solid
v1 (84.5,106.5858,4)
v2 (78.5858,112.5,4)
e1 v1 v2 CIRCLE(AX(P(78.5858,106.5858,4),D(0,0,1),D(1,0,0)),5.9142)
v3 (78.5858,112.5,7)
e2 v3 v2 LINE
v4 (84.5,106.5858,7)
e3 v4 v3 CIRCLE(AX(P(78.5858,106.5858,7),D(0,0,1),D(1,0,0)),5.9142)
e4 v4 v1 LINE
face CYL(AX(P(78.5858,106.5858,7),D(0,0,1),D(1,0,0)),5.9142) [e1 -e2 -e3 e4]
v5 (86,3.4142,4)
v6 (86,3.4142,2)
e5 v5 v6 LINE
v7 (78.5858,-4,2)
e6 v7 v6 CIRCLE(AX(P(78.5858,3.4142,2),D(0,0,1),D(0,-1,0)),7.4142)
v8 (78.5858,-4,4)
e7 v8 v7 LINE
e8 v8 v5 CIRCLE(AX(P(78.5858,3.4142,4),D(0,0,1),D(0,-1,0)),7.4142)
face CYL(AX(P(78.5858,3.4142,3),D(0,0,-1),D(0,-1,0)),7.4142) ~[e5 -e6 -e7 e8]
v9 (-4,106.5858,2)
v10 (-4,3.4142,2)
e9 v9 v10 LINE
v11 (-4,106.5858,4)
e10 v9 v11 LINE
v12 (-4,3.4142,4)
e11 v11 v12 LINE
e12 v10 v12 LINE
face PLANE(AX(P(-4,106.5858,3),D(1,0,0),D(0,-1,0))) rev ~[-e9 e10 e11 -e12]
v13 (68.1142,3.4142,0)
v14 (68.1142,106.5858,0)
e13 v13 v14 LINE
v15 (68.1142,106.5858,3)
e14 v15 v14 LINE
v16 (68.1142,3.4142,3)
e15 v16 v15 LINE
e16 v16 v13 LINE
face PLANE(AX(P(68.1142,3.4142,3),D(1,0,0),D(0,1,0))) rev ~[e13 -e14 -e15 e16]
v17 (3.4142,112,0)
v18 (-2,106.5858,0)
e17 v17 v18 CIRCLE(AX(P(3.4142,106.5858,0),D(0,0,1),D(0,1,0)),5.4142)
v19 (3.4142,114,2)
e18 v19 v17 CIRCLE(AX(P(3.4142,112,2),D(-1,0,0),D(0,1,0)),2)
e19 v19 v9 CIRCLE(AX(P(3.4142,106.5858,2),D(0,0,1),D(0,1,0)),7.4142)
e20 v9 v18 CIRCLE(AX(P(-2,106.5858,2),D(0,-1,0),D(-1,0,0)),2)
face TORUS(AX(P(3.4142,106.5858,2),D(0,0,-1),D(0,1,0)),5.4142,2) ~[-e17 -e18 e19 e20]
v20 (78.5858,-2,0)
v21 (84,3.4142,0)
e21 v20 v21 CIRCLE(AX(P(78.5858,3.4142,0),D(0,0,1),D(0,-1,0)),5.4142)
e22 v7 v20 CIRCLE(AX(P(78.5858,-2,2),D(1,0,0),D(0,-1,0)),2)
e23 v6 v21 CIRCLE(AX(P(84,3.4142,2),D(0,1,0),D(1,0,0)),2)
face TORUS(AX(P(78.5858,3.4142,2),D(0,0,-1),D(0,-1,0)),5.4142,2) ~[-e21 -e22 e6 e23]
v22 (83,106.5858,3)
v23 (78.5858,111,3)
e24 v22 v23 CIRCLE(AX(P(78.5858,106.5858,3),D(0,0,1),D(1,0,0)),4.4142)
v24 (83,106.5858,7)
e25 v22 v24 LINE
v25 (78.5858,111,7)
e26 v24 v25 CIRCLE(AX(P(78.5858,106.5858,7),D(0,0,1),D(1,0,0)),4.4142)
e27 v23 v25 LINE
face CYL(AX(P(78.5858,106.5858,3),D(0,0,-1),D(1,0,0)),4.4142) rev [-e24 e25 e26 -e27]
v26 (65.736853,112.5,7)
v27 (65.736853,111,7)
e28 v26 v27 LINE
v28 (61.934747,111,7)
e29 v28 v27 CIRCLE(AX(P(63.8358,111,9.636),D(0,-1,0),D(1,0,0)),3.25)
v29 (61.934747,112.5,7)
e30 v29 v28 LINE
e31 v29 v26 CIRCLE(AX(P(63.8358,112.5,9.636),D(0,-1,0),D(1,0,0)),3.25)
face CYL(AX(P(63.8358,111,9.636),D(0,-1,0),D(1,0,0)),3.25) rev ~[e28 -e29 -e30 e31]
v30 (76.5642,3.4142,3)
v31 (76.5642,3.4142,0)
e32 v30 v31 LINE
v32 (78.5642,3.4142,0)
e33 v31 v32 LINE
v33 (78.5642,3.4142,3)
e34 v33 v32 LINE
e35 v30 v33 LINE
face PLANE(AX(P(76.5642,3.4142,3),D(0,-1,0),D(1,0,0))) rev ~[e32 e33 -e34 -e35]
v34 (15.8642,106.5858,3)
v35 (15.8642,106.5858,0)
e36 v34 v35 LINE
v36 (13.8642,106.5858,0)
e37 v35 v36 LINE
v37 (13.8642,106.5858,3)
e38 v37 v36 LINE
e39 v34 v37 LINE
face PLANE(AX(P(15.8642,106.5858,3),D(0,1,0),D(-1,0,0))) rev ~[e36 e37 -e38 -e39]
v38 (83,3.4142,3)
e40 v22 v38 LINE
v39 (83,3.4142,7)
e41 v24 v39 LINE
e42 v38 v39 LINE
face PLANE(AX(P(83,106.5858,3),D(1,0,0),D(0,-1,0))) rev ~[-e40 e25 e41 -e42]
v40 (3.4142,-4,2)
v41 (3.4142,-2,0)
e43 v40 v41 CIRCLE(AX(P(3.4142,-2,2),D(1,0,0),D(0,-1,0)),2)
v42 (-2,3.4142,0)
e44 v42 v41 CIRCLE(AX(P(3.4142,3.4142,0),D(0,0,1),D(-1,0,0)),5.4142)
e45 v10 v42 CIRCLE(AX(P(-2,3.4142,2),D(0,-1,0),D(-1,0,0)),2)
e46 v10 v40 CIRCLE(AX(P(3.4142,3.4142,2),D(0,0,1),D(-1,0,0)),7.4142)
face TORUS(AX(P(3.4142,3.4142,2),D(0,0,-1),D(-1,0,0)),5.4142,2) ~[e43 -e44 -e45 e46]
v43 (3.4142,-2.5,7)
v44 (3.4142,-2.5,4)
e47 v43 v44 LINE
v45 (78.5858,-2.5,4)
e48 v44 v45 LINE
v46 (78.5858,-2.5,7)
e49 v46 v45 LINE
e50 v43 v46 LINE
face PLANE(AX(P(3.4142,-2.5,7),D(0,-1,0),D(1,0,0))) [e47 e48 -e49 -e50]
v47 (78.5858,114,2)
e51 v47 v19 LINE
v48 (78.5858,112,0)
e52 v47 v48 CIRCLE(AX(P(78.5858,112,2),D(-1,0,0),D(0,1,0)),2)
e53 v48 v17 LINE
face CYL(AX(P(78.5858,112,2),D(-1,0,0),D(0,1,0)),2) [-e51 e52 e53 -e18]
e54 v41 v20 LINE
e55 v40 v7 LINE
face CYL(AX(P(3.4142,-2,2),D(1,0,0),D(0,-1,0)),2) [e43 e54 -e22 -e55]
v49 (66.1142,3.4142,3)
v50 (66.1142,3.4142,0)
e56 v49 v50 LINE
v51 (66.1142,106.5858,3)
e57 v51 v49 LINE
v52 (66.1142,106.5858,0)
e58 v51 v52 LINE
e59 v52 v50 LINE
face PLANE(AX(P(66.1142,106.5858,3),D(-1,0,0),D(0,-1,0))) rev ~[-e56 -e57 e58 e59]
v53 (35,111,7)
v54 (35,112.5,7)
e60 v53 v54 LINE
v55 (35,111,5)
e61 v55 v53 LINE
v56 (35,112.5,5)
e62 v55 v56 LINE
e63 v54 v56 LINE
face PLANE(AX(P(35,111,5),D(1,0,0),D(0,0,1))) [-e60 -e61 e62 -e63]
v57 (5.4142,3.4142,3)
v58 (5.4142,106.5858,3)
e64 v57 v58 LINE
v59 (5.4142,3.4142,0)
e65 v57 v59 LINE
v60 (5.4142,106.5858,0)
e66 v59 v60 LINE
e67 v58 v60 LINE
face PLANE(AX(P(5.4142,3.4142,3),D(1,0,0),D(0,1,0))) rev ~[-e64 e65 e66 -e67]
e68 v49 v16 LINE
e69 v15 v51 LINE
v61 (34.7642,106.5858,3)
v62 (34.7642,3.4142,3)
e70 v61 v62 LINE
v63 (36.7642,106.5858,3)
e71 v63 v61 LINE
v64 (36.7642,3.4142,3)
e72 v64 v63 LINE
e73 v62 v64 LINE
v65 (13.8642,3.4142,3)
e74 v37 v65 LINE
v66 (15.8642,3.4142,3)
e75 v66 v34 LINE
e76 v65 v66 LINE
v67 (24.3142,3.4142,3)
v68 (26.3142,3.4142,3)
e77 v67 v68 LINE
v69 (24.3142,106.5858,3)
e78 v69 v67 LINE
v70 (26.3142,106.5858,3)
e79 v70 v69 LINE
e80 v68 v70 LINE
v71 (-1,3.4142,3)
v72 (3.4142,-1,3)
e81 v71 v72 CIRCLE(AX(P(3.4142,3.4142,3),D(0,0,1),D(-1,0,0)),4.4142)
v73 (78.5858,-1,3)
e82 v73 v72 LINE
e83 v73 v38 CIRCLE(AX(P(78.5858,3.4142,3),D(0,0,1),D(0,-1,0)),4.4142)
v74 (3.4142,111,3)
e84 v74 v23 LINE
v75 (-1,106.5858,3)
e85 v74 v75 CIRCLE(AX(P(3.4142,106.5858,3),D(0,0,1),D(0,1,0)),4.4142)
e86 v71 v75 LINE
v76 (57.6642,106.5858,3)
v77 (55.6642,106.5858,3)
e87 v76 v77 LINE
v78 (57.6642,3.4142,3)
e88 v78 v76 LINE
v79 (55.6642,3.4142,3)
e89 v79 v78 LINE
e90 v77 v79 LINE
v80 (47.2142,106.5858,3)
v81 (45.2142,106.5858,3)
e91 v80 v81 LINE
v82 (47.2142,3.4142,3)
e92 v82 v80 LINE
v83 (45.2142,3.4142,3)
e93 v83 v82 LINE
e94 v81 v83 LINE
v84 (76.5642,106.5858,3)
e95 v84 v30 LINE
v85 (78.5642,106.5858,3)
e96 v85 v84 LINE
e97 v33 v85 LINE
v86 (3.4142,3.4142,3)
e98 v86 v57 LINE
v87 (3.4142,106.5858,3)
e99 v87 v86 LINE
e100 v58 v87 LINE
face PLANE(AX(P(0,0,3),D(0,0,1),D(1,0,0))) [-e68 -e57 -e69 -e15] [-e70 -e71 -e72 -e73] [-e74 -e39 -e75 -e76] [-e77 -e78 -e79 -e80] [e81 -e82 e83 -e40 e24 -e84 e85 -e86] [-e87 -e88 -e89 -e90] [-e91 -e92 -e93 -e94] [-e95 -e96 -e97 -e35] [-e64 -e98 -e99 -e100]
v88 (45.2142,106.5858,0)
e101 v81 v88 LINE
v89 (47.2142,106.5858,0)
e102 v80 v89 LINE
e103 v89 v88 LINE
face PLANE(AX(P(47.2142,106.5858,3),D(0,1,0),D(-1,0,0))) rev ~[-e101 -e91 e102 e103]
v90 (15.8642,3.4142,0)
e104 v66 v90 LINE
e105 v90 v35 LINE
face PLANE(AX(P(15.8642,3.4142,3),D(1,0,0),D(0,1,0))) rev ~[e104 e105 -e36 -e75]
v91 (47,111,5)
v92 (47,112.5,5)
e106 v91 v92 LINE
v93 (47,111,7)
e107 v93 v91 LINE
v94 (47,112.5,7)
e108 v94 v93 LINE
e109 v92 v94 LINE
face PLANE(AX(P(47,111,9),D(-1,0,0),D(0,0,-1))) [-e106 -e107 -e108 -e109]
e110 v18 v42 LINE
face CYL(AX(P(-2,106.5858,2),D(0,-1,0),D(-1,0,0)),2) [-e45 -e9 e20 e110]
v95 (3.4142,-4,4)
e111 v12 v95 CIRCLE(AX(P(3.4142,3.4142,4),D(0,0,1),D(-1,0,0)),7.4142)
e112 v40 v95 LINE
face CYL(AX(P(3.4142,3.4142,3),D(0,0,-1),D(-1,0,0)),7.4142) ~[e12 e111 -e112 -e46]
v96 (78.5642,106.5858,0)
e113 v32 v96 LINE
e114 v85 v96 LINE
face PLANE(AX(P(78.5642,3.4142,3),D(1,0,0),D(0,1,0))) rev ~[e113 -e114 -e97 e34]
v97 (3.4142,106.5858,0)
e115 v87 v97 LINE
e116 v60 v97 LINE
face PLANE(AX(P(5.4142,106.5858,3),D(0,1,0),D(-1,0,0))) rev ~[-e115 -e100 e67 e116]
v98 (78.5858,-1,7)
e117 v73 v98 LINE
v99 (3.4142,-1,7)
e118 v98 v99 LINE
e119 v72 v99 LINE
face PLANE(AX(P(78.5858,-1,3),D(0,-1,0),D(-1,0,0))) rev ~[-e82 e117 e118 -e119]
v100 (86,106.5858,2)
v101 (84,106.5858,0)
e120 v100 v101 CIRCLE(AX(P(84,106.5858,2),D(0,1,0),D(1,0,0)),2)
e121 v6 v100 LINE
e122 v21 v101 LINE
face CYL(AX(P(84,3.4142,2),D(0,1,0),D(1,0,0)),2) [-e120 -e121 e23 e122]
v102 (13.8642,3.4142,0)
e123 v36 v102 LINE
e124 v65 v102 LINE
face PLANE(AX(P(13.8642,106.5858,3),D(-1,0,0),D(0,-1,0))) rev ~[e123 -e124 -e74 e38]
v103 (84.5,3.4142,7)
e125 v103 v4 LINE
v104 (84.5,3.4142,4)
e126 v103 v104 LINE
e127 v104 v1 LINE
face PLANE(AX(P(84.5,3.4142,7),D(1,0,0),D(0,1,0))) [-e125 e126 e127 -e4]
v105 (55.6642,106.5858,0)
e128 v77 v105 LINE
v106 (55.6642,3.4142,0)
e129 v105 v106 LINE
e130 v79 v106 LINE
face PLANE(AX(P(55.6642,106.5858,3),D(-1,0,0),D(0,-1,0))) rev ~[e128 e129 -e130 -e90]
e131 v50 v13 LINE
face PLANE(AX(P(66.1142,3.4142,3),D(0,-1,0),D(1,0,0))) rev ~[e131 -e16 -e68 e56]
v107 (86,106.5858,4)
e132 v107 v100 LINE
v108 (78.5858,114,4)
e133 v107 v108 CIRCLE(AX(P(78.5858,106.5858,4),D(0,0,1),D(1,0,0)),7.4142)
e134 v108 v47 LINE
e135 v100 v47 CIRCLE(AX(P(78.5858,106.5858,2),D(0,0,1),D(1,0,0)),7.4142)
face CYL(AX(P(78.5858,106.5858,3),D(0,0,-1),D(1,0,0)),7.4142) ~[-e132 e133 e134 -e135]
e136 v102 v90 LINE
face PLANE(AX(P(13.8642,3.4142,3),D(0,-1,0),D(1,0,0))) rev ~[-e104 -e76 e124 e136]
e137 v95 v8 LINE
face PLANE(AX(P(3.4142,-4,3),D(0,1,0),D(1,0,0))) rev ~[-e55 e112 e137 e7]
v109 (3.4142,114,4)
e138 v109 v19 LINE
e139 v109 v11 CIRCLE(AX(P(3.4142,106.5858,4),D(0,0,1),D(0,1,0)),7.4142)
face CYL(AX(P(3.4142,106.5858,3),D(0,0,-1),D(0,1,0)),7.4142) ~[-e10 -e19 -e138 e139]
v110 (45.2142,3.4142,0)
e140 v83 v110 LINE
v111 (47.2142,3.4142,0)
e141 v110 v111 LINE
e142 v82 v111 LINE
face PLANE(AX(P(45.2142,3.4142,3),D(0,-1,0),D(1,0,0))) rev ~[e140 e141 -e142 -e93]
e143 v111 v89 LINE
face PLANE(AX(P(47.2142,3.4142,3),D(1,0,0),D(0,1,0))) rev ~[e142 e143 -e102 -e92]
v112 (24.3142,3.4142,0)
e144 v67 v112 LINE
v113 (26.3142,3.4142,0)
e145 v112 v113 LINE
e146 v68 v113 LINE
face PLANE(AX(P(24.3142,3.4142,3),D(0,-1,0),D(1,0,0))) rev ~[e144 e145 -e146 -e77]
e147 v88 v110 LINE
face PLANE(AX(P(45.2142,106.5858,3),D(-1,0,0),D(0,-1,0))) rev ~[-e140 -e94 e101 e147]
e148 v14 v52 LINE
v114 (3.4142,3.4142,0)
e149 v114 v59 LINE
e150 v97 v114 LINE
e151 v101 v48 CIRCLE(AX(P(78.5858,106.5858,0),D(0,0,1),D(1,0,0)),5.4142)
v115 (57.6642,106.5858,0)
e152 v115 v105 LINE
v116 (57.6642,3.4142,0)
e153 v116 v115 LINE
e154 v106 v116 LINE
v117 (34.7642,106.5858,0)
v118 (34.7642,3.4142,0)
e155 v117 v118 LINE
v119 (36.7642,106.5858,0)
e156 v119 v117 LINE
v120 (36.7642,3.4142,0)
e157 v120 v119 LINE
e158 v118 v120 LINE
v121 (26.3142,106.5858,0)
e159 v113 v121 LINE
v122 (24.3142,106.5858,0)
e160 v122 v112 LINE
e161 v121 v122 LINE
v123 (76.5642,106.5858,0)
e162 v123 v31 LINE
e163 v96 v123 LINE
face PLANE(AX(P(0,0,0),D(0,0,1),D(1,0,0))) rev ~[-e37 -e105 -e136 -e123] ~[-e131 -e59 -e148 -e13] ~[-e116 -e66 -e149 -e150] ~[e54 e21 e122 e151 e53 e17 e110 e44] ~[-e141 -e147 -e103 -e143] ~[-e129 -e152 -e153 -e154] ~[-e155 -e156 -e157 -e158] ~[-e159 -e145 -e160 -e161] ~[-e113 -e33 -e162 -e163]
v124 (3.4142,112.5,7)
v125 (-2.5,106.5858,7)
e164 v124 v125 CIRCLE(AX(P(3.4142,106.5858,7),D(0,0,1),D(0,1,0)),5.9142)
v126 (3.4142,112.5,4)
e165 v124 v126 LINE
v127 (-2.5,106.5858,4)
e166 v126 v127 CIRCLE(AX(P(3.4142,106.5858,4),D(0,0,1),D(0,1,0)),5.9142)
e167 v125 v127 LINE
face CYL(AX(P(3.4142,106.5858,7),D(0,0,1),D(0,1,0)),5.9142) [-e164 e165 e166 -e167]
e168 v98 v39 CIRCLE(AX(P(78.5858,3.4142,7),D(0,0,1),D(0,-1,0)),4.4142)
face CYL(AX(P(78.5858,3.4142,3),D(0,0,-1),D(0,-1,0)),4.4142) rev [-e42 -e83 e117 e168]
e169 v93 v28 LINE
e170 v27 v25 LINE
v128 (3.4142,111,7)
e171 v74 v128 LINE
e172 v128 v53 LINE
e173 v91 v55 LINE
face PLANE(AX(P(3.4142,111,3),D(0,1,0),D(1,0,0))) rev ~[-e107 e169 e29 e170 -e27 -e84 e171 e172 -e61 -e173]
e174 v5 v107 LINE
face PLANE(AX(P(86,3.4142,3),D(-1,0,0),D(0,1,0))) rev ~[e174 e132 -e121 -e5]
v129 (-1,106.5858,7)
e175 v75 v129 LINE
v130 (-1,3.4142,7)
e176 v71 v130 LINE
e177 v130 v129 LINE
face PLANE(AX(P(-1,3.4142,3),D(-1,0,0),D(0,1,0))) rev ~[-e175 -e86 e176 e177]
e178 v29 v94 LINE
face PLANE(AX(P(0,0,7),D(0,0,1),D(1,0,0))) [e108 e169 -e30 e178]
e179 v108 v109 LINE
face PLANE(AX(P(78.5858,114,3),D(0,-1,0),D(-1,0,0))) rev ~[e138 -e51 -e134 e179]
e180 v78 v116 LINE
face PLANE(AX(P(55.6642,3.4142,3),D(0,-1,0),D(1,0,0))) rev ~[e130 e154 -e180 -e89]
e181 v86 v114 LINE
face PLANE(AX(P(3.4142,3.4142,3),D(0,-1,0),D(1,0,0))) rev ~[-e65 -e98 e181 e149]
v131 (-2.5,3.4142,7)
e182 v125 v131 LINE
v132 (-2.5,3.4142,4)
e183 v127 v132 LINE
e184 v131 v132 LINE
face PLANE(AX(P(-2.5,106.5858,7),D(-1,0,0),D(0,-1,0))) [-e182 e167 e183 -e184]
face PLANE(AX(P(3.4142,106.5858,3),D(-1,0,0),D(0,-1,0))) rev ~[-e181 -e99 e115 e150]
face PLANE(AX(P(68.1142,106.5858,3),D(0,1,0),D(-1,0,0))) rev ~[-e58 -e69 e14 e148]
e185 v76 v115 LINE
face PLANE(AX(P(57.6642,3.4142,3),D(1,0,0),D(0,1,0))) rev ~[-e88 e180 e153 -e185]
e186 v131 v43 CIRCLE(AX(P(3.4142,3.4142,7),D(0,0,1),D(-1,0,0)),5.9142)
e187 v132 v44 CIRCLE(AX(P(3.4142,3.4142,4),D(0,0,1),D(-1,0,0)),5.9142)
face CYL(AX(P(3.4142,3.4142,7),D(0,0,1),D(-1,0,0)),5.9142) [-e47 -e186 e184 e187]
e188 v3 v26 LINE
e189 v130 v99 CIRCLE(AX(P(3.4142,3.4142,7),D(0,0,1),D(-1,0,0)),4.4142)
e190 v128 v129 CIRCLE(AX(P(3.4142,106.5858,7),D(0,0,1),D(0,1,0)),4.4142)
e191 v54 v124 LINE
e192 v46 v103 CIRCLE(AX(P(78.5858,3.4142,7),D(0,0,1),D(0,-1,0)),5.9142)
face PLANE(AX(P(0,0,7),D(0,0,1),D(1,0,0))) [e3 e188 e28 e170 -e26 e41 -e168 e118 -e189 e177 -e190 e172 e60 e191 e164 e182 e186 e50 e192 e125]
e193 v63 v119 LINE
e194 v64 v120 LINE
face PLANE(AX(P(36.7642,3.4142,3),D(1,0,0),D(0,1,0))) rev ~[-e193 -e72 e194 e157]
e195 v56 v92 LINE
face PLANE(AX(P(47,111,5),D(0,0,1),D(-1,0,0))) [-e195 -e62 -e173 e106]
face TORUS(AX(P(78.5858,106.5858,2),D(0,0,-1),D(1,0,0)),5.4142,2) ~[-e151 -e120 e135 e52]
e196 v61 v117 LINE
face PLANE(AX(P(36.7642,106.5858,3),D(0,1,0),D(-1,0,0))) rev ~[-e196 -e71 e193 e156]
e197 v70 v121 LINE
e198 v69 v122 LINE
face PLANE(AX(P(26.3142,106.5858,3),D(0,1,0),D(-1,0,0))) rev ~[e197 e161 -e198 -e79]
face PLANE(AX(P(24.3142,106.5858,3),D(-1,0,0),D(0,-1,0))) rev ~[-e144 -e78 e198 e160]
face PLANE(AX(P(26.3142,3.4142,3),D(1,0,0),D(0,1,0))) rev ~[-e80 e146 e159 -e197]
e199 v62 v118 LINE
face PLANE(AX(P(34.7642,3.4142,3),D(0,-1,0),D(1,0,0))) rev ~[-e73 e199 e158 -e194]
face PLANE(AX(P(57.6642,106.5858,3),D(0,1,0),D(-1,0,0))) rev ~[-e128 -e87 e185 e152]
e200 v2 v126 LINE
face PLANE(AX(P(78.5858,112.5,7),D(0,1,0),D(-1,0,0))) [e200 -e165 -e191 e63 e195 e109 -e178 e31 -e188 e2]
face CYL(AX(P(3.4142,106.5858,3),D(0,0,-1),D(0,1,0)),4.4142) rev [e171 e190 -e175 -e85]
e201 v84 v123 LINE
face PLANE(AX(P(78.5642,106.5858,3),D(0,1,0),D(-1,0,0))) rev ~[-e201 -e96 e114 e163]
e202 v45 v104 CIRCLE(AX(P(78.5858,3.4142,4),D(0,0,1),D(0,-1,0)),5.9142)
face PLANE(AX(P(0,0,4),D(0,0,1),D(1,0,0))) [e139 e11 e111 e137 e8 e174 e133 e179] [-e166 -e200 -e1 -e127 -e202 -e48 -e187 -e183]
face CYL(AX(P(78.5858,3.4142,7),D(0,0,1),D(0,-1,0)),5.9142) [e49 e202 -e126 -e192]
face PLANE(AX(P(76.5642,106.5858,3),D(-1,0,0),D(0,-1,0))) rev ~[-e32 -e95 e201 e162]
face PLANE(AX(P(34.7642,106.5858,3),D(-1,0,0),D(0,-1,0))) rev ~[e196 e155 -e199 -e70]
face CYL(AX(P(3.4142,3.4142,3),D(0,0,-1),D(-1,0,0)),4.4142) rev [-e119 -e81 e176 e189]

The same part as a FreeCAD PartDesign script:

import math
import FreeCAD as App
import Part
import Sketcher
from FreeCAD import Vector
Q = App.Units.Quantity


def edges_at(feature, points):
    """Names of the edges that pass closest to the given points."""
    edges = feature.Shape.Edges
    near = lambda p: min(range(len(edges)), key=lambda i: edges[i].distToShape(Part.Vertex(*p))[0])
    return sorted({f"Edge{near(p) + 1}" for p in points})

doc = App.newDocument("Part")
params = doc.addObject("Spreadsheet::Sheet", "Params")
for row, (alias, value) in enumerate([
    ("pad1_length", "3 mm"),
    ("pad2_length", "4 mm"),
    ("pocket1_length", "3 mm"),
    ("fillet_radius", "2 mm"),
    ("sketch4_width", "12 mm"),
    ("sketch4_height", "4 mm"),
    ("sketch4_diameter", "6.5 mm"),
    ("pocket2_length", "3 mm"),
    ("sketch5_width", "2 mm"),
    ("pocket3_length", "3 mm"),
], start=1):
    params.set(f"A{row}", alias)
    params.set(f"B{row}", "=" + value)
    params.setAlias(f"B{row}", alias)

body = doc.addObject("PartDesign::Body", "Body")

sketch1 = doc.addObject("Sketcher::SketchObject", "Sketch")
body.addObject(sketch1)
sketch1.AttachmentSupport = (doc.XY_Plane, [""])
sketch1.MapMode = "FlatFace"
sketch1.addGeometry(Part.LineSegment(Vector(86, 3, 0), Vector(86, 107, 0)), False)
sketch1.addGeometry(Part.ArcOfCircle(Part.Circle(Vector(79, 107, 0), Vector(0, 0, 1), 7), math.radians(0), math.radians(90)), False)
sketch1.addGeometry(Part.LineSegment(Vector(79, 114, 0), Vector(3, 114, 0)), False)
sketch1.addGeometry(Part.ArcOfCircle(Part.Circle(Vector(3, 107, 0), Vector(0, 0, 1), 7), math.radians(90), math.radians(180)), False)
sketch1.addGeometry(Part.LineSegment(Vector(-4, 107, 0), Vector(-4, 3, 0)), False)
sketch1.addGeometry(Part.ArcOfCircle(Part.Circle(Vector(3, 3, 0), Vector(0, 0, 1), 7), math.radians(180), math.radians(270)), False)
sketch1.addGeometry(Part.LineSegment(Vector(3, -4, 0), Vector(79, -4, 0)), False)
sketch1.addGeometry(Part.ArcOfCircle(Part.Circle(Vector(79, 3, 0), Vector(0, 0, 1), 7), math.radians(-90), math.radians(0)), False)
sketch1.addConstraint(Sketcher.Constraint("Tangent", 0, 2, 1, 1))
sketch1.addConstraint(Sketcher.Constraint("Tangent", 1, 2, 2, 1))
sketch1.addConstraint(Sketcher.Constraint("Tangent", 2, 2, 3, 1))
sketch1.addConstraint(Sketcher.Constraint("Tangent", 3, 2, 4, 1))
sketch1.addConstraint(Sketcher.Constraint("Tangent", 4, 2, 5, 1))
sketch1.addConstraint(Sketcher.Constraint("Tangent", 5, 2, 6, 1))
sketch1.addConstraint(Sketcher.Constraint("Tangent", 6, 2, 7, 1))
sketch1.addConstraint(Sketcher.Constraint("Tangent", 7, 2, 0, 1))
sketch1.addConstraint(Sketcher.Constraint("Vertical", 0))
sketch1.addConstraint(Sketcher.Constraint("Horizontal", 2))
sketch1.addConstraint(Sketcher.Constraint("Vertical", 4))
sketch1.addConstraint(Sketcher.Constraint("Horizontal", 6))
sketch1.addConstraint(Sketcher.Constraint("Equal", 1, 3))
sketch1.addConstraint(Sketcher.Constraint("Equal", 3, 5))
sketch1.addConstraint(Sketcher.Constraint("Equal", 5, 7))
sketch1.addConstraint(Sketcher.Constraint("DistanceX", -1, 1, 0, 2, Q("86 mm")))
sketch1.addConstraint(Sketcher.Constraint("DistanceY", -1, 1, 1, 2, Q("114 mm")))
sketch1.addConstraint(Sketcher.Constraint("DistanceX", 3, 2, -1, 1, Q("4 mm")))
sketch1.addConstraint(Sketcher.Constraint("DistanceY", 5, 2, -1, 1, Q("4 mm")))
sketch1.addConstraint(Sketcher.Constraint("Radius", 1, Q("7.4142 mm")))
pad1 = doc.addObject("PartDesign::Pad", "Pad")
body.addObject(pad1)
pad1.Profile = sketch1
pad1.setExpression("Length", "Params.pad1_length")

sketch2 = doc.addObject("Sketcher::SketchObject", "Sketch001")
body.addObject(sketch2)
sketch2.AttachmentSupport = (doc.XY_Plane, [""])
sketch2.MapMode = "FlatFace"
sketch2.AttachmentOffset = App.Placement(Vector(0, 0, 3), App.Rotation())
sketch2.addGeometry(Part.ArcOfCircle(Part.Circle(Vector(3.4, 106.6, 0), Vector(0, 0, 1), 7.4), math.radians(90), math.radians(180)), False)
sketch2.addGeometry(Part.LineSegment(Vector(-4, 106.6, 0), Vector(-4, 3.4, 0)), False)
sketch2.addGeometry(Part.ArcOfCircle(Part.Circle(Vector(3.4, 3.4, 0), Vector(0, 0, 1), 7.4), math.radians(180), math.radians(270)), False)
sketch2.addGeometry(Part.LineSegment(Vector(3.4, -4, 0), Vector(78.6, -4, 0)), False)
sketch2.addGeometry(Part.ArcOfCircle(Part.Circle(Vector(78.6, 3.4, 0), Vector(0, 0, 1), 7.4), math.radians(-90), math.radians(0)), False)
sketch2.addGeometry(Part.LineSegment(Vector(86, 3.4, 0), Vector(86, 106.6, 0)), False)
sketch2.addGeometry(Part.ArcOfCircle(Part.Circle(Vector(78.6, 106.6, 0), Vector(0, 0, 1), 7.4), math.radians(0), math.radians(90)), False)
sketch2.addGeometry(Part.LineSegment(Vector(78.6, 114, 0), Vector(3.4, 114, 0)), False)
sketch2.addGeometry(Part.ArcOfCircle(Part.Circle(Vector(78.6, 106.6, 0), Vector(0, 0, 1), 4.4), math.radians(0), math.radians(90)), False)
sketch2.addGeometry(Part.LineSegment(Vector(83, 106.6, 0), Vector(83, 3.4, 0)), False)
sketch2.addGeometry(Part.ArcOfCircle(Part.Circle(Vector(78.6, 3.4, 0), Vector(0, 0, 1), 4.4), math.radians(-90), math.radians(0)), False)
sketch2.addGeometry(Part.LineSegment(Vector(78.6, -1, 0), Vector(3.4, -1, 0)), False)
sketch2.addGeometry(Part.ArcOfCircle(Part.Circle(Vector(3.4, 3.4, 0), Vector(0, 0, 1), 4.4), math.radians(180), math.radians(270)), False)
sketch2.addGeometry(Part.LineSegment(Vector(-1, 3.4, 0), Vector(-1, 106.6, 0)), False)
sketch2.addGeometry(Part.ArcOfCircle(Part.Circle(Vector(3.4, 106.6, 0), Vector(0, 0, 1), 4.4), math.radians(90), math.radians(180)), False)
sketch2.addGeometry(Part.LineSegment(Vector(3.4, 111, 0), Vector(78.6, 111, 0)), False)
sketch2.addConstraint(Sketcher.Constraint("Tangent", 0, 2, 1, 1))
sketch2.addConstraint(Sketcher.Constraint("Tangent", 1, 2, 2, 1))
sketch2.addConstraint(Sketcher.Constraint("Tangent", 2, 2, 3, 1))
sketch2.addConstraint(Sketcher.Constraint("Tangent", 3, 2, 4, 1))
sketch2.addConstraint(Sketcher.Constraint("Tangent", 4, 2, 5, 1))
sketch2.addConstraint(Sketcher.Constraint("Tangent", 5, 2, 6, 1))
sketch2.addConstraint(Sketcher.Constraint("Tangent", 6, 2, 7, 1))
sketch2.addConstraint(Sketcher.Constraint("Tangent", 7, 2, 0, 1))
sketch2.addConstraint(Sketcher.Constraint("Tangent", 8, 1, 9, 1))
sketch2.addConstraint(Sketcher.Constraint("Tangent", 9, 2, 10, 2))
sketch2.addConstraint(Sketcher.Constraint("Tangent", 10, 1, 11, 1))
sketch2.addConstraint(Sketcher.Constraint("Tangent", 11, 2, 12, 2))
sketch2.addConstraint(Sketcher.Constraint("Tangent", 12, 1, 13, 1))
sketch2.addConstraint(Sketcher.Constraint("Tangent", 13, 2, 14, 2))
sketch2.addConstraint(Sketcher.Constraint("Tangent", 14, 1, 15, 1))
sketch2.addConstraint(Sketcher.Constraint("Tangent", 15, 2, 8, 2))
sketch2.addConstraint(Sketcher.Constraint("Vertical", 1))
sketch2.addConstraint(Sketcher.Constraint("Horizontal", 3))
sketch2.addConstraint(Sketcher.Constraint("Vertical", 5))
sketch2.addConstraint(Sketcher.Constraint("Horizontal", 7))
sketch2.addConstraint(Sketcher.Constraint("Vertical", 9))
sketch2.addConstraint(Sketcher.Constraint("Horizontal", 11))
sketch2.addConstraint(Sketcher.Constraint("Vertical", 13))
sketch2.addConstraint(Sketcher.Constraint("Horizontal", 15))
sketch2.addConstraint(Sketcher.Constraint("Coincident", 8, 3, 6, 3))
sketch2.addConstraint(Sketcher.Constraint("Coincident", 10, 3, 4, 3))
sketch2.addConstraint(Sketcher.Constraint("Coincident", 12, 3, 2, 3))
sketch2.addConstraint(Sketcher.Constraint("Equal", 0, 2))
sketch2.addConstraint(Sketcher.Constraint("Equal", 2, 4))
sketch2.addConstraint(Sketcher.Constraint("Equal", 4, 6))
sketch2.addConstraint(Sketcher.Constraint("Equal", 12, 14))
sketch2.addConstraint(Sketcher.Constraint("DistanceX", 8, 1, 5, 2, Q("3 mm")))
sketch2.addConstraint(Sketcher.Constraint("DistanceX", 0, 2, -1, 1, Q("4 mm")))
sketch2.addConstraint(Sketcher.Constraint("DistanceY", 2, 2, -1, 1, Q("4 mm")))
sketch2.addConstraint(Sketcher.Constraint("DistanceX", -1, 1, 4, 2, Q("86 mm")))
sketch2.addConstraint(Sketcher.Constraint("DistanceY", -1, 1, 6, 2, Q("114 mm")))
sketch2.addConstraint(Sketcher.Constraint("Radius", 0, Q("7.4142 mm")))
pad2 = doc.addObject("PartDesign::Pad", "Pad001")
body.addObject(pad2)
pad2.Profile = sketch2
pad2.setExpression("Length", "Params.pad2_length")

sketch3 = doc.addObject("Sketcher::SketchObject", "Sketch002")
body.addObject(sketch3)
sketch3.AttachmentSupport = (doc.XY_Plane, [""])
sketch3.MapMode = "FlatFace"
sketch3.AttachmentOffset = App.Placement(Vector(0, 0, 7), App.Rotation())
sketch3.addGeometry(Part.ArcOfCircle(Part.Circle(Vector(3, 107, 0), Vector(0, 0, 1), 7), math.radians(90), math.radians(180)), False)
sketch3.addGeometry(Part.LineSegment(Vector(-4, 107, 0), Vector(-4, 3, 0)), False)
sketch3.addGeometry(Part.ArcOfCircle(Part.Circle(Vector(3, 3, 0), Vector(0, 0, 1), 7), math.radians(180), math.radians(270)), False)
sketch3.addGeometry(Part.LineSegment(Vector(3, -4, 0), Vector(79, -4, 0)), False)
sketch3.addGeometry(Part.ArcOfCircle(Part.Circle(Vector(79, 3, 0), Vector(0, 0, 1), 7), math.radians(-90), math.radians(0)), False)
sketch3.addGeometry(Part.LineSegment(Vector(86, 3, 0), Vector(86, 107, 0)), False)
sketch3.addGeometry(Part.ArcOfCircle(Part.Circle(Vector(79, 107, 0), Vector(0, 0, 1), 7), math.radians(0), math.radians(90)), False)
sketch3.addGeometry(Part.LineSegment(Vector(79, 114, 0), Vector(3, 114, 0)), False)
sketch3.addGeometry(Part.LineSegment(Vector(-2, 3, 0), Vector(-2, 107, 0)), False)
sketch3.addGeometry(Part.ArcOfCircle(Part.Circle(Vector(3, 107, 0), Vector(0, 0, 1), 6), math.radians(90), math.radians(180)), False)
sketch3.addGeometry(Part.LineSegment(Vector(3, 112, 0), Vector(79, 112, 0)), False)
sketch3.addGeometry(Part.ArcOfCircle(Part.Circle(Vector(79, 107, 0), Vector(0, 0, 1), 6), math.radians(0), math.radians(90)), False)
sketch3.addGeometry(Part.LineSegment(Vector(84, 107, 0), Vector(84, 3, 0)), False)
sketch3.addGeometry(Part.ArcOfCircle(Part.Circle(Vector(79, 3, 0), Vector(0, 0, 1), 6), math.radians(-90), math.radians(0)), False)
sketch3.addGeometry(Part.LineSegment(Vector(79, -2, 0), Vector(3, -2, 0)), False)
sketch3.addGeometry(Part.ArcOfCircle(Part.Circle(Vector(3, 3, 0), Vector(0, 0, 1), 6), math.radians(180), math.radians(270)), False)
sketch3.addConstraint(Sketcher.Constraint("Tangent", 0, 2, 1, 1))
sketch3.addConstraint(Sketcher.Constraint("Tangent", 1, 2, 2, 1))
sketch3.addConstraint(Sketcher.Constraint("Tangent", 2, 2, 3, 1))
sketch3.addConstraint(Sketcher.Constraint("Tangent", 3, 2, 4, 1))
sketch3.addConstraint(Sketcher.Constraint("Tangent", 4, 2, 5, 1))
sketch3.addConstraint(Sketcher.Constraint("Tangent", 5, 2, 6, 1))
sketch3.addConstraint(Sketcher.Constraint("Tangent", 6, 2, 7, 1))
sketch3.addConstraint(Sketcher.Constraint("Tangent", 7, 2, 0, 1))
sketch3.addConstraint(Sketcher.Constraint("Tangent", 8, 2, 9, 2))
sketch3.addConstraint(Sketcher.Constraint("Tangent", 9, 1, 10, 1))
sketch3.addConstraint(Sketcher.Constraint("Tangent", 10, 2, 11, 2))
sketch3.addConstraint(Sketcher.Constraint("Tangent", 11, 1, 12, 1))
sketch3.addConstraint(Sketcher.Constraint("Tangent", 12, 2, 13, 2))
sketch3.addConstraint(Sketcher.Constraint("Tangent", 13, 1, 14, 1))
sketch3.addConstraint(Sketcher.Constraint("Tangent", 14, 2, 15, 2))
sketch3.addConstraint(Sketcher.Constraint("Tangent", 15, 1, 8, 1))
sketch3.addConstraint(Sketcher.Constraint("Vertical", 1))
sketch3.addConstraint(Sketcher.Constraint("Horizontal", 3))
sketch3.addConstraint(Sketcher.Constraint("Vertical", 5))
sketch3.addConstraint(Sketcher.Constraint("Horizontal", 7))
sketch3.addConstraint(Sketcher.Constraint("Vertical", 8))
sketch3.addConstraint(Sketcher.Constraint("Horizontal", 10))
sketch3.addConstraint(Sketcher.Constraint("Vertical", 12))
sketch3.addConstraint(Sketcher.Constraint("Horizontal", 14))
sketch3.addConstraint(Sketcher.Constraint("Coincident", 9, 3, 0, 3))
sketch3.addConstraint(Sketcher.Constraint("Coincident", 11, 3, 6, 3))
sketch3.addConstraint(Sketcher.Constraint("Coincident", 13, 3, 4, 3))
sketch3.addConstraint(Sketcher.Constraint("Equal", 0, 2))
sketch3.addConstraint(Sketcher.Constraint("Equal", 2, 4))
sketch3.addConstraint(Sketcher.Constraint("Equal", 4, 6))
sketch3.addConstraint(Sketcher.Constraint("Equal", 13, 15))
sketch3.addConstraint(Sketcher.Constraint("DistanceX", 0, 2, 8, 2, Q("1.5 mm")))
sketch3.addConstraint(Sketcher.Constraint("DistanceX", 0, 2, -1, 1, Q("4 mm")))
sketch3.addConstraint(Sketcher.Constraint("DistanceY", 2, 2, -1, 1, Q("4 mm")))
sketch3.addConstraint(Sketcher.Constraint("DistanceX", -1, 1, 4, 2, Q("86 mm")))
sketch3.addConstraint(Sketcher.Constraint("DistanceY", -1, 1, 6, 2, Q("114 mm")))
sketch3.addConstraint(Sketcher.Constraint("Radius", 0, Q("7.4142 mm")))
pocket1 = doc.addObject("PartDesign::Pocket", "Pocket")
body.addObject(pocket1)
pocket1.Profile = sketch3
pocket1.setExpression("Length", "Params.pocket1_length")
doc.recompute()

fillet = doc.addObject("PartDesign::Fillet", "Fillet")
body.addObject(fillet)
fillet.Base = (pocket1, edges_at(pocket1, [
    (-1.828, 111.828, 0),
    (-4, 55, 0),
    (-1.828, -1.828, 0),
    (41, -4, 0),
    (83.828, -1.828, 0),
    (86, 55, 0),
    (83.828, 111.828, 0),
    (41, 114, 0),
]))
fillet.setExpression("Radius", "Params.fillet_radius")

sketch4 = doc.addObject("Sketcher::SketchObject", "Sketch003")
body.addObject(sketch4)
sketch4.AttachmentSupport = (doc.XZ_Plane, [""])
sketch4.MapMode = "FlatFace"
sketch4.AttachmentOffset = App.Placement(Vector(0, 0, -111), App.Rotation())
sketch4.addGeometry(Part.Circle(Vector(63.8, 9.6, 0), Vector(0, 0, 1), 3.2), False)
sketch4.addGeometry(Part.LineSegment(Vector(47, 9, 0), Vector(35, 9, 0)), False)
sketch4.addGeometry(Part.LineSegment(Vector(35, 9, 0), Vector(35, 5, 0)), False)
sketch4.addGeometry(Part.LineSegment(Vector(35, 5, 0), Vector(47, 5, 0)), False)
sketch4.addGeometry(Part.LineSegment(Vector(47, 5, 0), Vector(47, 9, 0)), False)
sketch4.addConstraint(Sketcher.Constraint("Coincident", 1, 2, 2, 1))
sketch4.addConstraint(Sketcher.Constraint("Coincident", 2, 2, 3, 1))
sketch4.addConstraint(Sketcher.Constraint("Coincident", 3, 2, 4, 1))
sketch4.addConstraint(Sketcher.Constraint("Coincident", 4, 2, 1, 1))
sketch4.addConstraint(Sketcher.Constraint("Horizontal", 1))
sketch4.addConstraint(Sketcher.Constraint("Vertical", 2))
sketch4.addConstraint(Sketcher.Constraint("Horizontal", 3))
sketch4.addConstraint(Sketcher.Constraint("Vertical", 4))
sketch4.addConstraint(Sketcher.Constraint("DistanceX", 1, 2, 1, 1, Q("12 mm")))
sketch4.addConstraint(Sketcher.Constraint("DistanceY", 2, 2, 2, 1, Q("4 mm")))
sketch4.addConstraint(Sketcher.Constraint("Diameter", 0, Q("6.5 mm")))
sketch4.addConstraint(Sketcher.Constraint("DistanceX", -1, 1, 1, 2, Q("35 mm")))
sketch4.addConstraint(Sketcher.Constraint("DistanceY", -1, 1, 1, 2, Q("9 mm")))
sketch4.addConstraint(Sketcher.Constraint("DistanceY", -1, 1, 0, 3, Q("9.636 mm")))
sketch4.addConstraint(Sketcher.Constraint("DistanceX", -1, 1, 0, 3, Q("63.8358 mm")))
sketch4.setExpression("Constraints[8]", "Params.sketch4_width")
sketch4.setExpression("Constraints[9]", "Params.sketch4_height")
sketch4.setExpression("Constraints[10]", "Params.sketch4_diameter")
pocket2 = doc.addObject("PartDesign::Pocket", "Pocket001")
body.addObject(pocket2)
pocket2.Profile = sketch4
pocket2.setExpression("Length", "Params.pocket2_length")

sketch5 = doc.addObject("Sketcher::SketchObject", "Sketch004")
body.addObject(sketch5)
sketch5.AttachmentSupport = (doc.XY_Plane, [""])
sketch5.MapMode = "FlatFace"
sketch5.AttachmentOffset = App.Placement(Vector(0, 0, 3), App.Rotation())
sketch5.addGeometry(Part.LineSegment(Vector(3.4, 106.6, 0), Vector(3.4, 3.4, 0)), False)
sketch5.addGeometry(Part.LineSegment(Vector(3.4, 3.4, 0), Vector(5.4, 3.4, 0)), False)
sketch5.addGeometry(Part.LineSegment(Vector(5.4, 3.4, 0), Vector(5.4, 106.6, 0)), False)
sketch5.addGeometry(Part.LineSegment(Vector(5.4, 106.6, 0), Vector(3.4, 106.6, 0)), False)
sketch5.addGeometry(Part.LineSegment(Vector(13.9, 106.6, 0), Vector(13.9, 3.4, 0)), False)
sketch5.addGeometry(Part.LineSegment(Vector(13.9, 3.4, 0), Vector(15.9, 3.4, 0)), False)
sketch5.addGeometry(Part.LineSegment(Vector(15.9, 3.4, 0), Vector(15.9, 106.6, 0)), False)
sketch5.addGeometry(Part.LineSegment(Vector(15.9, 106.6, 0), Vector(13.9, 106.6, 0)), False)
sketch5.addGeometry(Part.LineSegment(Vector(24.3, 106.6, 0), Vector(24.3, 3.4, 0)), False)
sketch5.addGeometry(Part.LineSegment(Vector(24.3, 3.4, 0), Vector(26.3, 3.4, 0)), False)
sketch5.addGeometry(Part.LineSegment(Vector(26.3, 3.4, 0), Vector(26.3, 106.6, 0)), False)
sketch5.addGeometry(Part.LineSegment(Vector(26.3, 106.6, 0), Vector(24.3, 106.6, 0)), False)
sketch5.addGeometry(Part.LineSegment(Vector(34.8, 106.6, 0), Vector(34.8, 3.4, 0)), False)
sketch5.addGeometry(Part.LineSegment(Vector(34.8, 3.4, 0), Vector(36.8, 3.4, 0)), False)
sketch5.addGeometry(Part.LineSegment(Vector(36.8, 3.4, 0), Vector(36.8, 106.6, 0)), False)
sketch5.addGeometry(Part.LineSegment(Vector(36.8, 106.6, 0), Vector(34.8, 106.6, 0)), False)
sketch5.addGeometry(Part.LineSegment(Vector(45.2, 106.6, 0), Vector(45.2, 3.4, 0)), False)
sketch5.addGeometry(Part.LineSegment(Vector(45.2, 3.4, 0), Vector(47.2, 3.4, 0)), False)
sketch5.addGeometry(Part.LineSegment(Vector(47.2, 3.4, 0), Vector(47.2, 106.6, 0)), False)
sketch5.addGeometry(Part.LineSegment(Vector(47.2, 106.6, 0), Vector(45.2, 106.6, 0)), False)
sketch5.addGeometry(Part.LineSegment(Vector(55.7, 106.6, 0), Vector(55.7, 3.4, 0)), False)
sketch5.addGeometry(Part.LineSegment(Vector(55.7, 3.4, 0), Vector(57.7, 3.4, 0)), False)
sketch5.addGeometry(Part.LineSegment(Vector(57.7, 3.4, 0), Vector(57.7, 106.6, 0)), False)
sketch5.addGeometry(Part.LineSegment(Vector(57.7, 106.6, 0), Vector(55.7, 106.6, 0)), False)
sketch5.addGeometry(Part.LineSegment(Vector(66.1, 106.6, 0), Vector(66.1, 3.4, 0)), False)
sketch5.addGeometry(Part.LineSegment(Vector(66.1, 3.4, 0), Vector(68.1, 3.4, 0)), False)
sketch5.addGeometry(Part.LineSegment(Vector(68.1, 3.4, 0), Vector(68.1, 106.6, 0)), False)
sketch5.addGeometry(Part.LineSegment(Vector(68.1, 106.6, 0), Vector(66.1, 106.6, 0)), False)
sketch5.addGeometry(Part.LineSegment(Vector(76.6, 106.6, 0), Vector(76.6, 3.4, 0)), False)
sketch5.addGeometry(Part.LineSegment(Vector(76.6, 3.4, 0), Vector(78.6, 3.4, 0)), False)
sketch5.addGeometry(Part.LineSegment(Vector(78.6, 3.4, 0), Vector(78.6, 106.6, 0)), False)
sketch5.addGeometry(Part.LineSegment(Vector(78.6, 106.6, 0), Vector(76.6, 106.6, 0)), False)
sketch5.addConstraint(Sketcher.Constraint("Coincident", 0, 2, 1, 1))
sketch5.addConstraint(Sketcher.Constraint("Coincident", 1, 2, 2, 1))
sketch5.addConstraint(Sketcher.Constraint("Coincident", 2, 2, 3, 1))
sketch5.addConstraint(Sketcher.Constraint("Coincident", 3, 2, 0, 1))
sketch5.addConstraint(Sketcher.Constraint("Coincident", 4, 2, 5, 1))
sketch5.addConstraint(Sketcher.Constraint("Coincident", 5, 2, 6, 1))
sketch5.addConstraint(Sketcher.Constraint("Coincident", 6, 2, 7, 1))
sketch5.addConstraint(Sketcher.Constraint("Coincident", 7, 2, 4, 1))
sketch5.addConstraint(Sketcher.Constraint("Coincident", 8, 2, 9, 1))
sketch5.addConstraint(Sketcher.Constraint("Coincident", 9, 2, 10, 1))
sketch5.addConstraint(Sketcher.Constraint("Coincident", 10, 2, 11, 1))
sketch5.addConstraint(Sketcher.Constraint("Coincident", 11, 2, 8, 1))
sketch5.addConstraint(Sketcher.Constraint("Coincident", 12, 2, 13, 1))
sketch5.addConstraint(Sketcher.Constraint("Coincident", 13, 2, 14, 1))
sketch5.addConstraint(Sketcher.Constraint("Coincident", 14, 2, 15, 1))
sketch5.addConstraint(Sketcher.Constraint("Coincident", 15, 2, 12, 1))
sketch5.addConstraint(Sketcher.Constraint("Coincident", 16, 2, 17, 1))
sketch5.addConstraint(Sketcher.Constraint("Coincident", 17, 2, 18, 1))
sketch5.addConstraint(Sketcher.Constraint("Coincident", 18, 2, 19, 1))
sketch5.addConstraint(Sketcher.Constraint("Coincident", 19, 2, 16, 1))
sketch5.addConstraint(Sketcher.Constraint("Coincident", 20, 2, 21, 1))
sketch5.addConstraint(Sketcher.Constraint("Coincident", 21, 2, 22, 1))
sketch5.addConstraint(Sketcher.Constraint("Coincident", 22, 2, 23, 1))
sketch5.addConstraint(Sketcher.Constraint("Coincident", 23, 2, 20, 1))
sketch5.addConstraint(Sketcher.Constraint("Coincident", 24, 2, 25, 1))
sketch5.addConstraint(Sketcher.Constraint("Coincident", 25, 2, 26, 1))
sketch5.addConstraint(Sketcher.Constraint("Coincident", 26, 2, 27, 1))
sketch5.addConstraint(Sketcher.Constraint("Coincident", 27, 2, 24, 1))
sketch5.addConstraint(Sketcher.Constraint("Coincident", 28, 2, 29, 1))
sketch5.addConstraint(Sketcher.Constraint("Coincident", 29, 2, 30, 1))
sketch5.addConstraint(Sketcher.Constraint("Coincident", 30, 2, 31, 1))
sketch5.addConstraint(Sketcher.Constraint("Coincident", 31, 2, 28, 1))
sketch5.addConstraint(Sketcher.Constraint("Vertical", 0))
sketch5.addConstraint(Sketcher.Constraint("Horizontal", 1))
sketch5.addConstraint(Sketcher.Constraint("Vertical", 2))
sketch5.addConstraint(Sketcher.Constraint("Horizontal", 3))
sketch5.addConstraint(Sketcher.Constraint("Vertical", 4))
sketch5.addConstraint(Sketcher.Constraint("Horizontal", 5))
sketch5.addConstraint(Sketcher.Constraint("Vertical", 6))
sketch5.addConstraint(Sketcher.Constraint("Horizontal", 7))
sketch5.addConstraint(Sketcher.Constraint("Vertical", 8))
sketch5.addConstraint(Sketcher.Constraint("Horizontal", 9))
sketch5.addConstraint(Sketcher.Constraint("Vertical", 10))
sketch5.addConstraint(Sketcher.Constraint("Horizontal", 11))
sketch5.addConstraint(Sketcher.Constraint("Vertical", 12))
sketch5.addConstraint(Sketcher.Constraint("Horizontal", 13))
sketch5.addConstraint(Sketcher.Constraint("Vertical", 14))
sketch5.addConstraint(Sketcher.Constraint("Horizontal", 15))
sketch5.addConstraint(Sketcher.Constraint("Vertical", 16))
sketch5.addConstraint(Sketcher.Constraint("Horizontal", 17))
sketch5.addConstraint(Sketcher.Constraint("Vertical", 18))
sketch5.addConstraint(Sketcher.Constraint("Horizontal", 19))
sketch5.addConstraint(Sketcher.Constraint("Vertical", 20))
sketch5.addConstraint(Sketcher.Constraint("Horizontal", 21))
sketch5.addConstraint(Sketcher.Constraint("Vertical", 22))
sketch5.addConstraint(Sketcher.Constraint("Horizontal", 23))
sketch5.addConstraint(Sketcher.Constraint("Vertical", 24))
sketch5.addConstraint(Sketcher.Constraint("Horizontal", 25))
sketch5.addConstraint(Sketcher.Constraint("Vertical", 26))
sketch5.addConstraint(Sketcher.Constraint("Horizontal", 27))
sketch5.addConstraint(Sketcher.Constraint("Vertical", 28))
sketch5.addConstraint(Sketcher.Constraint("Horizontal", 29))
sketch5.addConstraint(Sketcher.Constraint("Vertical", 30))
sketch5.addConstraint(Sketcher.Constraint("Horizontal", 31))
sketch5.addConstraint(Sketcher.Constraint("Horizontal", 1, 2, 4, 2))
sketch5.addConstraint(Sketcher.Constraint("Horizontal", 3, 2, 6, 2))
sketch5.addConstraint(Sketcher.Constraint("Horizontal", 5, 2, 8, 2))
sketch5.addConstraint(Sketcher.Constraint("Horizontal", 7, 2, 10, 2))
sketch5.addConstraint(Sketcher.Constraint("Horizontal", 9, 2, 12, 2))
sketch5.addConstraint(Sketcher.Constraint("Horizontal", 11, 2, 14, 2))
sketch5.addConstraint(Sketcher.Constraint("Horizontal", 13, 2, 16, 2))
sketch5.addConstraint(Sketcher.Constraint("Horizontal", 15, 2, 18, 2))
sketch5.addConstraint(Sketcher.Constraint("Horizontal", 17, 2, 20, 2))
sketch5.addConstraint(Sketcher.Constraint("Horizontal", 19, 2, 22, 2))
sketch5.addConstraint(Sketcher.Constraint("Horizontal", 21, 2, 24, 2))
sketch5.addConstraint(Sketcher.Constraint("Horizontal", 23, 2, 26, 2))
sketch5.addConstraint(Sketcher.Constraint("Horizontal", 25, 2, 28, 2))
sketch5.addConstraint(Sketcher.Constraint("Horizontal", 27, 2, 30, 2))
sketch5.addConstraint(Sketcher.Constraint("Equal", 3, 5))
sketch5.addConstraint(Sketcher.Constraint("Equal", 7, 9))
sketch5.addConstraint(Sketcher.Constraint("Equal", 11, 13))
sketch5.addConstraint(Sketcher.Constraint("Equal", 15, 17))
sketch5.addConstraint(Sketcher.Constraint("Equal", 19, 21))
sketch5.addConstraint(Sketcher.Constraint("Equal", 23, 25))
sketch5.addConstraint(Sketcher.Constraint("Equal", 27, 29))
sketch5.addConstraint(Sketcher.Constraint("DistanceX", 1, 1, 1, 2, Q("2 mm")))
sketch5.addConstraint(Sketcher.Constraint("DistanceX", 0, 2, 4, 2, Q("10.45 mm")))
sketch5.addConstraint(Sketcher.Constraint("DistanceX", 4, 2, 8, 2, Q("10.45 mm")))
sketch5.addConstraint(Sketcher.Constraint("DistanceX", 8, 2, 12, 2, Q("10.45 mm")))
sketch5.addConstraint(Sketcher.Constraint("DistanceX", 12, 2, 16, 2, Q("10.45 mm")))
sketch5.addConstraint(Sketcher.Constraint("DistanceX", 16, 2, 20, 2, Q("10.45 mm")))
sketch5.addConstraint(Sketcher.Constraint("DistanceX", 20, 2, 24, 2, Q("10.45 mm")))
sketch5.addConstraint(Sketcher.Constraint("DistanceX", 24, 2, 28, 2, Q("10.45 mm")))
sketch5.addConstraint(Sketcher.Constraint("DistanceY", 0, 2, 0, 1, Q("103.1716 mm")))
sketch5.addConstraint(Sketcher.Constraint("DistanceX", -1, 1, 0, 2, Q("3.4142 mm")))
sketch5.addConstraint(Sketcher.Constraint("DistanceY", -1, 1, 0, 2, Q("3.4142 mm")))
sketch5.setExpression("Constraints[85]", "Params.sketch5_width")
pocket3 = doc.addObject("PartDesign::Pocket", "Pocket002")
body.addObject(pocket3)
pocket3.Profile = sketch5
pocket3.setExpression("Length", "Params.pocket3_length")

doc.recompute()
